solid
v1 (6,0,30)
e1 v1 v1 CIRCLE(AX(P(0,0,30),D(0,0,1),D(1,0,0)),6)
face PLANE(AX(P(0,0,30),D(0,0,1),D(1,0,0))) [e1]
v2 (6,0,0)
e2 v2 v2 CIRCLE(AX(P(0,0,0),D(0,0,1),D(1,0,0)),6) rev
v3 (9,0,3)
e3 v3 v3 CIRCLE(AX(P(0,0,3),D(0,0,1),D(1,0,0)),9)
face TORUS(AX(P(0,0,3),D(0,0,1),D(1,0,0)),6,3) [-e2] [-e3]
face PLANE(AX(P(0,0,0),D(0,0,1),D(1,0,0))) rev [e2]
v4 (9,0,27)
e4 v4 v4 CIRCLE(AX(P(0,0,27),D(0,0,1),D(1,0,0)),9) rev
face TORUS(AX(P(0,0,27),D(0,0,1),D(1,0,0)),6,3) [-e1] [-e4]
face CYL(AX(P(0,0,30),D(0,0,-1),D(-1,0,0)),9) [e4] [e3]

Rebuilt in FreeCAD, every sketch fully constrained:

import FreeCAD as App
import Part
import Sketcher

V = App.Vector


def edges_at(feature, points):
    """Names of the edges that pass closest to the given points."""
    edges = feature.Shape.Edges
    near = lambda p: min(range(len(edges)), key=lambda i: edges[i].distToShape(Part.Vertex(*p))[0])
    return sorted({f"Edge{near(p) + 1}" for p in points})

doc = App.newDocument("Part")
params = doc.addObject("Spreadsheet::Sheet", "Params")
for row, (alias, value) in enumerate([
    ("sketch1_diameter", "18 mm"),
    ("pad1_length", "30 mm"),
    ("fillet_radius", "3 mm"),
], start=1):
    params.set(f"A{row}", alias)
    params.set(f"B{row}", "=" + value)
    params.setAlias(f"B{row}", alias)

body = doc.addObject("PartDesign::Body", "Body")

sketch1 = doc.addObject("Sketcher::SketchObject", "Sketch")
body.addObject(sketch1)
sketch1.AttachmentSupport = (doc.XY_Plane, [""])
sketch1.MapMode = "FlatFace"
sketch1.addGeometry(Part.Circle(V(0, 0, 0), V(0, 0, 1), 9), False)
sketch1.addConstraint([
    Sketcher.Constraint("Coincident", 0, 3, -1, 1),
    Sketcher.Constraint("Diameter", 0, 18.0),
])
sketch1.setExpression("Constraints[1]", "Params.sketch1_diameter")
pad1 = doc.addObject("PartDesign::Pad", "Pad")
body.addObject(pad1)
pad1.Profile = sketch1
pad1.setExpression("Length", "Params.pad1_length")
doc.recompute()

fillet = doc.addObject("PartDesign::Fillet", "Fillet")
body.addObject(fillet)
fillet.Base = (pad1, edges_at(pad1, [(-9, 0, 0), (-9, 0, 30)]))
fillet.setExpression("Radius", "Params.fillet_radius")

doc.recompute()
